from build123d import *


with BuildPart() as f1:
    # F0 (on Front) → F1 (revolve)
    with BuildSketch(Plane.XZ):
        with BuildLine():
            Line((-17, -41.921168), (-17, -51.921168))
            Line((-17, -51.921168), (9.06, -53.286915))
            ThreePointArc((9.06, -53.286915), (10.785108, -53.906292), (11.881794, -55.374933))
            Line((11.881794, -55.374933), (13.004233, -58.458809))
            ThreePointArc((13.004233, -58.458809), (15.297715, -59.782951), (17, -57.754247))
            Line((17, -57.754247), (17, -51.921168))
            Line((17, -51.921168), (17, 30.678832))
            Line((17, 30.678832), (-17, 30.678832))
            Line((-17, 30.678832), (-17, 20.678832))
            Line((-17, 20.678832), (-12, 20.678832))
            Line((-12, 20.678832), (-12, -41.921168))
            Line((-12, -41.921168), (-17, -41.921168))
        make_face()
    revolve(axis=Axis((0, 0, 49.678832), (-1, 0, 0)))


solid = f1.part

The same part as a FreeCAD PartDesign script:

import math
import FreeCAD as App
import Part
import Sketcher
Q = App.Units.Quantity

doc = App.newDocument("Part")
body = doc.addObject("PartDesign::Body", "Body")

sketch1 = body.newObject("Sketcher::SketchObject", "Sketch")
sketch1.AttachmentSupport = (doc.getObject("XZ_Plane"), [""])
sketch1.MapMode = "FlatFace"
sketch1.addGeometry(Part.LineSegment(App.Vector(-17, -41.921168, 0), App.Vector(-17, -51.921168, 0)), False)
sketch1.addGeometry(Part.LineSegment(App.Vector(-17, -51.921168, 0), App.Vector(9.06, -53.286915, 0)), False)
sketch1.addGeometry(Part.ArcOfCircle(Part.Circle(App.Vector(8.893572, -56.462556, 0), App.Vector(0, 0, 1), 3.179999), math.radians(19.999988), math.radians(87.000004)), False)
sketch1.addGeometry(Part.LineSegment(App.Vector(11.881794, -55.374933, 0), App.Vector(13.004233, -58.458809, 0)), False)
sketch1.addGeometry(Part.ArcOfCircle(Part.Circle(App.Vector(14.94, -57.754247, 0), App.Vector(0, 0, 1), 2.06), math.radians(-159.999981), math.radians(-0.000006)), False)
sketch1.addGeometry(Part.LineSegment(App.Vector(17, -57.754247, 0), App.Vector(17, 30.678832, 0)), False)
sketch1.addGeometry(Part.LineSegment(App.Vector(17, 30.678832, 0), App.Vector(-17, 30.678832, 0)), False)
sketch1.addGeometry(Part.LineSegment(App.Vector(-17, 30.678832, 0), App.Vector(-17, 20.678832, 0)), False)
sketch1.addGeometry(Part.LineSegment(App.Vector(-17, 20.678832, 0), App.Vector(-12, 20.678832, 0)), False)
sketch1.addGeometry(Part.LineSegment(App.Vector(-12, 20.678832, 0), App.Vector(-12, -41.921168, 0)), False)
sketch1.addGeometry(Part.LineSegment(App.Vector(-12, -41.921168, 0), App.Vector(-17, -41.921168, 0)), False)
sketch1.addGeometry(Part.LineSegment(App.Vector(17, 49.678832, 0), App.Vector(-17, 49.678832, 0)), True)
sketch1.addConstraint(Sketcher.Constraint("Coincident", 0, 2, 1, 1))
sketch1.addConstraint(Sketcher.Constraint("Tangent", 1, 2, 2, 2))
sketch1.addConstraint(Sketcher.Constraint("Tangent", 2, 1, 3, 1))
sketch1.addConstraint(Sketcher.Constraint("Tangent", 3, 2, 4, 1))
sketch1.addConstraint(Sketcher.Constraint("Tangent", 4, 2, 5, 1))
sketch1.addConstraint(Sketcher.Constraint("Coincident", 5, 2, 6, 1))
sketch1.addConstraint(Sketcher.Constraint("Coincident", 6, 2, 7, 1))
sketch1.addConstraint(Sketcher.Constraint("Coincident", 7, 2, 8, 1))
sketch1.addConstraint(Sketcher.Constraint("Coincident", 8, 2, 9, 1))
sketch1.addConstraint(Sketcher.Constraint("Coincident", 9, 2, 10, 1))
sketch1.addConstraint(Sketcher.Constraint("Coincident", 10, 2, 0, 1))
sketch1.addConstraint(Sketcher.Constraint("Vertical", 0))
sketch1.addConstraint(Sketcher.Constraint("Vertical", 5))
sketch1.addConstraint(Sketcher.Constraint("Horizontal", 6))
sketch1.addConstraint(Sketcher.Constraint("Vertical", 7))
sketch1.addConstraint(Sketcher.Constraint("Horizontal", 8))
sketch1.addConstraint(Sketcher.Constraint("Vertical", 9))
sketch1.addConstraint(Sketcher.Constraint("Horizontal", 10))
sketch1.addConstraint(Sketcher.Constraint("Horizontal", 11))
sketch1.addConstraint(Sketcher.Constraint("Vertical", 0, 2, 6, 2))
sketch1.addConstraint(Sketcher.Constraint("Vertical", 5, 2, 11, 1))
sketch1.addConstraint(Sketcher.Constraint("Vertical", 10, 2, 11, 2))
sketch1.addConstraint(Sketcher.Constraint("Equal", 0, 7))
sketch1.addConstraint(Sketcher.Constraint("DistanceX", 6, 2, 6, 1, 34.0))
sketch1.addConstraint(Sketcher.Constraint("DistanceX", 8, 1, 8, 2, 5.0))
sketch1.addConstraint(Sketcher.Constraint("DistanceY", 0, 2, 0, 1, 10.0))
sketch1.addConstraint(Sketcher.Constraint("Angle", 1, Q("-3.000001 deg")))
sketch1.addConstraint(Sketcher.Constraint("Angle", 3, Q("-70.000001 deg")))
sketch1.addConstraint(Sketcher.Constraint("Radius", 2, 3.179999))
sketch1.addConstraint(Sketcher.Constraint("Radius", 4, 2.06))
sketch1.addConstraint(Sketcher.Constraint("DistanceY", 9, 2, 9, 1, 62.6))
sketch1.addConstraint(Sketcher.Constraint("DistanceX", 0, 2, -1, 1, 17.0))
sketch1.addConstraint(Sketcher.Constraint("DistanceY", 5, 2, 11, 1, 19.0))
sketch1.addConstraint(Sketcher.Constraint("DistanceX", -1, 1, 1, 2, 9.06))
sketch1.addConstraint(Sketcher.Constraint("DistanceY", 0, 2, -1, 1, 51.921168))
revolution = body.newObject("PartDesign::Revolution", "Revolution")
revolution.Profile = sketch1
revolution.ReferenceAxis = (sketch1, ["Axis0"])
revolution.Angle = 360

doc.recompute()
